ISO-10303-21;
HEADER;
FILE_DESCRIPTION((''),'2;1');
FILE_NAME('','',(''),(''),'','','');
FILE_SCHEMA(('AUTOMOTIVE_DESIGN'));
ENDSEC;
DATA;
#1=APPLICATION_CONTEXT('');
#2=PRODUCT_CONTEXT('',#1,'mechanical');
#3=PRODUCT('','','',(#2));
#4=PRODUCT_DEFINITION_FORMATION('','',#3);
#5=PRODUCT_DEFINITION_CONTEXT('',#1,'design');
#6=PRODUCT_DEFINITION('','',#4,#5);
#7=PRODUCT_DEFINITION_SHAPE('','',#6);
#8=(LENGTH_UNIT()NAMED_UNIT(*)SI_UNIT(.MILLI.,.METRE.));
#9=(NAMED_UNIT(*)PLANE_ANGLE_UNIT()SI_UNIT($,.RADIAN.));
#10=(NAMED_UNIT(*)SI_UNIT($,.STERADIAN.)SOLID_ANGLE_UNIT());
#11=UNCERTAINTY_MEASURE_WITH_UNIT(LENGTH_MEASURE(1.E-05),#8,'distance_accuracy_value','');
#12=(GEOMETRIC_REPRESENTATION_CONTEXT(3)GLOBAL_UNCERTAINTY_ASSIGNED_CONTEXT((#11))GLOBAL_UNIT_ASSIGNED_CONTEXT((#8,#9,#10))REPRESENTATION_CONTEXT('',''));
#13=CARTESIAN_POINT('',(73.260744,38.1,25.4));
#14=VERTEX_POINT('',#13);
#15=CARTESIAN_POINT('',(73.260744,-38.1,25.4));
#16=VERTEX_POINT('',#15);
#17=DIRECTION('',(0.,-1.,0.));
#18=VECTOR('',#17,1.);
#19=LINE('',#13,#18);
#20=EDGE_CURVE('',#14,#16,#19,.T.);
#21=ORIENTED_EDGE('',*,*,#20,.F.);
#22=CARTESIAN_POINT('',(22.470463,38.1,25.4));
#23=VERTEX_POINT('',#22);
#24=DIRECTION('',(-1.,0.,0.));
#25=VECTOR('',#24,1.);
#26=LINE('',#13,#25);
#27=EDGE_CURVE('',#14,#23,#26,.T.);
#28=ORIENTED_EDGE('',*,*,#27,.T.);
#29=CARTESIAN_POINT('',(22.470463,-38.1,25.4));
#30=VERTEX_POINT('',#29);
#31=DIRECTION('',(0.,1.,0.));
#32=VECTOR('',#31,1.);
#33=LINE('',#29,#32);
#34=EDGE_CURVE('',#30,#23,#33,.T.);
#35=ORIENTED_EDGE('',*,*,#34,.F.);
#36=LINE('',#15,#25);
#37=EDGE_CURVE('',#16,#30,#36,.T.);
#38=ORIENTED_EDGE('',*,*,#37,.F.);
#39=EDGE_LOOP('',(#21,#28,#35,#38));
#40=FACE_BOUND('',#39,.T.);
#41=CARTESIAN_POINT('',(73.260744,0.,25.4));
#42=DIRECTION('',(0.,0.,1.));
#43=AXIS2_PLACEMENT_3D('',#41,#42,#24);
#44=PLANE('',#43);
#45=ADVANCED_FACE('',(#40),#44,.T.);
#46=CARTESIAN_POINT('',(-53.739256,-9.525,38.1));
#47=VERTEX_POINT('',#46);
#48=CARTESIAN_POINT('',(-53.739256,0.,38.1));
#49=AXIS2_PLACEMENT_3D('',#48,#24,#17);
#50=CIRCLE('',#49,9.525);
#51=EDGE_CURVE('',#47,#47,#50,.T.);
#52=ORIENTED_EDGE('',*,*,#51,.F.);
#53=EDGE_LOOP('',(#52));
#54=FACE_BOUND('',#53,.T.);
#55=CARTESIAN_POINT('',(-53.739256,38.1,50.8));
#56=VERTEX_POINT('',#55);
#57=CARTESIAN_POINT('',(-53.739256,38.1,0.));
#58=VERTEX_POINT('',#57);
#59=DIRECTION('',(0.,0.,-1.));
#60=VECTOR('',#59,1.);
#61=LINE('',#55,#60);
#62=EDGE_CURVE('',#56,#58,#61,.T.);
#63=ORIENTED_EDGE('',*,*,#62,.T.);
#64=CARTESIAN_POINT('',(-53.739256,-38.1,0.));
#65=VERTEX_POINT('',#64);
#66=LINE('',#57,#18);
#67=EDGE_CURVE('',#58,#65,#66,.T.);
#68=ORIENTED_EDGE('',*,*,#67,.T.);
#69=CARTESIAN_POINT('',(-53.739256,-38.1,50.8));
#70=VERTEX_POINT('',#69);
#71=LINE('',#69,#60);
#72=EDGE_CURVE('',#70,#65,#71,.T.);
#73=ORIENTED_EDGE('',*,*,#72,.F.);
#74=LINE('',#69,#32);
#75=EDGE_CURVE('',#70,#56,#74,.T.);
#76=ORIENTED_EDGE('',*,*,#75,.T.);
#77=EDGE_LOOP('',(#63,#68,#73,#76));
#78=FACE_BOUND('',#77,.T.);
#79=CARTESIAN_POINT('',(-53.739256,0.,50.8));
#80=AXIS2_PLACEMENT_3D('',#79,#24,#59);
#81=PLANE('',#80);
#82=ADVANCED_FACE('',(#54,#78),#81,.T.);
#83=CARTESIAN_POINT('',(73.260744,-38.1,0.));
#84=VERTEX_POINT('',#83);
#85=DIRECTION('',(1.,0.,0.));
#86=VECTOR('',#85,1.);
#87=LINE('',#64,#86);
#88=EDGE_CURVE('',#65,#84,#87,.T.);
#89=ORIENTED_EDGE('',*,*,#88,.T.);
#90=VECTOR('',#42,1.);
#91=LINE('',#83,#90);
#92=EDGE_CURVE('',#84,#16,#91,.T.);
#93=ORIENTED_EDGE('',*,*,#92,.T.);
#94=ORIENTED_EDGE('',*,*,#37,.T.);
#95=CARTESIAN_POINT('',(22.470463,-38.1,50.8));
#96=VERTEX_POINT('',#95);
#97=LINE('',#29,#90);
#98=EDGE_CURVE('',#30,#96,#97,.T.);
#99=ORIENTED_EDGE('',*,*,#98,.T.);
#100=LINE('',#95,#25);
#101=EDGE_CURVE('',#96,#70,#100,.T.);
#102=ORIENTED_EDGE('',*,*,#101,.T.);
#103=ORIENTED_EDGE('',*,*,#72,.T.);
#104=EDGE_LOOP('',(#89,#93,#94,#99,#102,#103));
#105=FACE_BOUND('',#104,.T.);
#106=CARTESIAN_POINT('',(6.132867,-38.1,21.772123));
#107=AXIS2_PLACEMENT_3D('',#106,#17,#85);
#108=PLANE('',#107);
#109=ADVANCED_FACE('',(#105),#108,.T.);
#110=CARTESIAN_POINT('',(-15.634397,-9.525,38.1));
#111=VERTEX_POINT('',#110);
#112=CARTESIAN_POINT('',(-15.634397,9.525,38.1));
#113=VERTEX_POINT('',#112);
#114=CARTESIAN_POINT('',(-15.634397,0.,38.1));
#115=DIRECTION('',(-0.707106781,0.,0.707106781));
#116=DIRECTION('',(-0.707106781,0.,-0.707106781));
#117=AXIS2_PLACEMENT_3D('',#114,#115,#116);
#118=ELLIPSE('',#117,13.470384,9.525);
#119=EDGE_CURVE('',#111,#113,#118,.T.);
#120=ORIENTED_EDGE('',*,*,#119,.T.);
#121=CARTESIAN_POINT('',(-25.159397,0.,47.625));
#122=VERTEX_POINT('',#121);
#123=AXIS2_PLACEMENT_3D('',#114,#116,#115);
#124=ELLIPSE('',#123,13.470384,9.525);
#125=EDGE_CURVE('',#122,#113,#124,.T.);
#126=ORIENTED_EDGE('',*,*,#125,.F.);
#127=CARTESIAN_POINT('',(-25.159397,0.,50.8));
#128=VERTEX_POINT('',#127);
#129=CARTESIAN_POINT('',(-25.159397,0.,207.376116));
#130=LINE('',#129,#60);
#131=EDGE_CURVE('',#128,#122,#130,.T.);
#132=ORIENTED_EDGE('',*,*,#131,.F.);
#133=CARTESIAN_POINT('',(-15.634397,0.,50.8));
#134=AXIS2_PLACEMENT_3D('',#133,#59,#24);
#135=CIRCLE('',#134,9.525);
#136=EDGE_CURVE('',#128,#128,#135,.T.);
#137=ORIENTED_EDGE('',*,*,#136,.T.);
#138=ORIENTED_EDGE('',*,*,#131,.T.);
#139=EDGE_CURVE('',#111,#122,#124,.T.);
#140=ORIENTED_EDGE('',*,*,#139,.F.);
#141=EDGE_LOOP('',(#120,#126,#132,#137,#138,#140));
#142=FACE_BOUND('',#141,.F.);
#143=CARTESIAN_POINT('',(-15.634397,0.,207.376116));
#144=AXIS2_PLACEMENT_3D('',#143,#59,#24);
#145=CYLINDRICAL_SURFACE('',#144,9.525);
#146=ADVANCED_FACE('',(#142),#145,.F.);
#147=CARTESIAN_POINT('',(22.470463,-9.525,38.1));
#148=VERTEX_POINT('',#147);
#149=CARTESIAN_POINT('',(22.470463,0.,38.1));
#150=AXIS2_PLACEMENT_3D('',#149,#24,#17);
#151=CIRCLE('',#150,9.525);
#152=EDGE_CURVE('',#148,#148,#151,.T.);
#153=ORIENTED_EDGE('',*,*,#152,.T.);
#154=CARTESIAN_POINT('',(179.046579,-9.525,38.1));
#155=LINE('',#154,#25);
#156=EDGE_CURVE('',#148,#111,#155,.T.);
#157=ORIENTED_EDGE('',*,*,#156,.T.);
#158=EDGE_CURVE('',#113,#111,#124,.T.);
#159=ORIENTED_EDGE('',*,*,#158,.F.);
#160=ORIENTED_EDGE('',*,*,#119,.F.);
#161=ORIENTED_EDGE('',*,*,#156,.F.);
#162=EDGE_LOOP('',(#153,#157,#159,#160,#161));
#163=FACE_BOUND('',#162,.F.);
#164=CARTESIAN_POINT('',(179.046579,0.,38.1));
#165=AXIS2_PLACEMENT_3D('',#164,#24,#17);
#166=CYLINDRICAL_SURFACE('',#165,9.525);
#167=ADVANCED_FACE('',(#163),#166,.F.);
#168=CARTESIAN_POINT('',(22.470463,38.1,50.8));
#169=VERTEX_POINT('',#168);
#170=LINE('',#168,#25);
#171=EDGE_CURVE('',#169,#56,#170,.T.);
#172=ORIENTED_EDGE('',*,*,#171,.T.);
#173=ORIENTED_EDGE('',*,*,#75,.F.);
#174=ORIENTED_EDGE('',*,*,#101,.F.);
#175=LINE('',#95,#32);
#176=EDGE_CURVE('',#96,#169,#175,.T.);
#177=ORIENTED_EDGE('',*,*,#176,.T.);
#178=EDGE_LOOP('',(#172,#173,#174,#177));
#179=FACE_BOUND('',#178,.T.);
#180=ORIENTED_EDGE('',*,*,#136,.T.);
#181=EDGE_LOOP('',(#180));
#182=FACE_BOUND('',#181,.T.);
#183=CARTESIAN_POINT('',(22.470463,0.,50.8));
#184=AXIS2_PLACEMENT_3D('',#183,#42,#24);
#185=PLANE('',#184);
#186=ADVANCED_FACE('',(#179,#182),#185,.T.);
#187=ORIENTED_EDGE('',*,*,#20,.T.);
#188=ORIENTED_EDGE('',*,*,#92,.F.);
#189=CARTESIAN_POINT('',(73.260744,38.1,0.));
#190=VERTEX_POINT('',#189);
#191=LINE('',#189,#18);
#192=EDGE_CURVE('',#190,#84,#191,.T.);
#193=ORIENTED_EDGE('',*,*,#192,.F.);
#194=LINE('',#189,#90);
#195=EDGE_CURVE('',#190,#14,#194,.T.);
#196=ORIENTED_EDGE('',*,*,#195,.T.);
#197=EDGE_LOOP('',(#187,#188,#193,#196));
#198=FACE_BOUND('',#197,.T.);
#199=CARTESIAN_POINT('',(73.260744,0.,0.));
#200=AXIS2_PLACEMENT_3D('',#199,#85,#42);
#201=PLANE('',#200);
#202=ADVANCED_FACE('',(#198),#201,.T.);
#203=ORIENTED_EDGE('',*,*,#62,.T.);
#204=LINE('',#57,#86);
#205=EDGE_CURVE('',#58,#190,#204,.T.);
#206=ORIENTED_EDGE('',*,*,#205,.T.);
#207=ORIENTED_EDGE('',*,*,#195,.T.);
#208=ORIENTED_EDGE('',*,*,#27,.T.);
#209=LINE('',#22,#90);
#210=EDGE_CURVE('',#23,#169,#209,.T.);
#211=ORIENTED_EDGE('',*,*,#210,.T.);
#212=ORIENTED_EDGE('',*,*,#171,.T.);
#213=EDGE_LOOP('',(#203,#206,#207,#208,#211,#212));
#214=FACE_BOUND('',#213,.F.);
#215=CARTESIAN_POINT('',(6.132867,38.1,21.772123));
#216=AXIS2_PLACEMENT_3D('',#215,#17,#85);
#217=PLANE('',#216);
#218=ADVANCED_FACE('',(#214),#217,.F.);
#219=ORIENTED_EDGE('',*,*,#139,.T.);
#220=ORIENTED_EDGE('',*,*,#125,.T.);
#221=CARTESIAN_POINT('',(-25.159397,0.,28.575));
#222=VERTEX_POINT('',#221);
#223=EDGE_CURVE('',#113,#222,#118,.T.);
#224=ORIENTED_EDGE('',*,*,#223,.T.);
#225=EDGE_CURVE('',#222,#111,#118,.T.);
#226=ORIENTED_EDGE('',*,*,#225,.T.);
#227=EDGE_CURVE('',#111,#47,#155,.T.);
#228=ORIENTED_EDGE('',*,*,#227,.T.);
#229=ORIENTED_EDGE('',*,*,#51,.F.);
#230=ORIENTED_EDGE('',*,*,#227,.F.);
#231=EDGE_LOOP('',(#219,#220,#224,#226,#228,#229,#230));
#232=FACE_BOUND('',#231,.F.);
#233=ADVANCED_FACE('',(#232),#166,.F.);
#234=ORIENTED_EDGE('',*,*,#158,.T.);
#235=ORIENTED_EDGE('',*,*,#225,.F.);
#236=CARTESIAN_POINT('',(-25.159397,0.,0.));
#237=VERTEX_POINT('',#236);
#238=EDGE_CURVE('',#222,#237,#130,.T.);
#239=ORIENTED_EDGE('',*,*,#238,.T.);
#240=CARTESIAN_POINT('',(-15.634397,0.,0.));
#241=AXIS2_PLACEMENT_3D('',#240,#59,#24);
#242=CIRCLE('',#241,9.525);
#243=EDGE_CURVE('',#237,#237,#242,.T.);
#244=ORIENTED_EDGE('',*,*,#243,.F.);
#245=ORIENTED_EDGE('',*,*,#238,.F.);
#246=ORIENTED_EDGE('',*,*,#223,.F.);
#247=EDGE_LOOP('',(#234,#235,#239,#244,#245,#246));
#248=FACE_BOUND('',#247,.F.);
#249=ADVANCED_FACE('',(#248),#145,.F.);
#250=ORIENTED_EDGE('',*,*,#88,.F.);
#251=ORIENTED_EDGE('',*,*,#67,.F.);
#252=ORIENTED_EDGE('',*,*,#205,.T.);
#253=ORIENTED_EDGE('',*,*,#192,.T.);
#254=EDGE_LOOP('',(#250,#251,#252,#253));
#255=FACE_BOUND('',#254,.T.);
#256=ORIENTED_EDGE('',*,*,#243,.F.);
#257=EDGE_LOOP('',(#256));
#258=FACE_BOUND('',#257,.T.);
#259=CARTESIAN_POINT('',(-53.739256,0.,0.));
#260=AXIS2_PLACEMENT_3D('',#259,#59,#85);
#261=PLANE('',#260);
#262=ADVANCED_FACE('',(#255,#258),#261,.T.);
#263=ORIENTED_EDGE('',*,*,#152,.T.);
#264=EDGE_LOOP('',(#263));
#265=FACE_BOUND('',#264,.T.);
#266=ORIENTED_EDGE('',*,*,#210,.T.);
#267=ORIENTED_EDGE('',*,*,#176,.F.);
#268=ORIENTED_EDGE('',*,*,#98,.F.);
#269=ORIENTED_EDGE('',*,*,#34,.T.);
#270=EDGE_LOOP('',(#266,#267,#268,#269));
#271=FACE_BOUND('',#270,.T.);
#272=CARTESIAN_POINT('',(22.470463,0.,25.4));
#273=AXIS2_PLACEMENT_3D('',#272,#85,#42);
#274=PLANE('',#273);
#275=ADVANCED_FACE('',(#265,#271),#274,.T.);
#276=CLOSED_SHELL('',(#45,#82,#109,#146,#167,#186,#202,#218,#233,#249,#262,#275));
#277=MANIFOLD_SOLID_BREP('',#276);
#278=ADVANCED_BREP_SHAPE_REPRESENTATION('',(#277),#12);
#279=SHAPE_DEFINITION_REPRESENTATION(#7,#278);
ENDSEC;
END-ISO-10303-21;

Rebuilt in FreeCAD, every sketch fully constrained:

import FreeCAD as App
import Part
import Sketcher
Q = App.Units.Quantity


def add_polygon(sketch, points):
    """Adds a closed chain of lines whose ends are joined by coincident constraints."""
    first, n = sketch.GeometryCount, len(points)
    for a, b in zip(points, points[1:] + points[:1]):
        sketch.addGeometry(Part.LineSegment(App.Vector(*a, 0), App.Vector(*b, 0)), False)
    for i in range(n):
        sketch.addConstraint(Sketcher.Constraint("Coincident", first + i, 2, first + (i + 1) % n, 1))

doc = App.newDocument("Part")
params = doc.addObject("Spreadsheet::Sheet", "Params")
for row, (alias, value) in enumerate([
    ("sketch1_width", "5 in"),
    ("sketch1_height", "2 in"),
    ("pad1_length", "3 in"),
    ("sketch2_diameter", "0.75 in"),
    ("hole_diameter", "0.75 in"),
    ("sketch3_diameter", "0.75 in"),
    ("hole2_diameter", "0.75 in"),
], start=1):
    params.set(f"A{row}", alias)
    params.set(f"B{row}", "=" + value)
    params.setAlias(f"B{row}", alias)

body = doc.addObject("PartDesign::Body", "Body")

sketch1 = doc.addObject("Sketcher::SketchObject", "Sketch")
body.addObject(sketch1)
sketch1.AttachmentSupport = (doc.XZ_Plane, [""])
sketch1.MapMode = "FlatFace"
add_polygon(sketch1, [(-54, 51), (-54, 0), (73, 0), (73, 25), (22, 25), (22, 51)])
sketch1.addConstraint([
    Sketcher.Constraint("Vertical", 0),
    Sketcher.Constraint("Horizontal", 1),
    Sketcher.Constraint("Vertical", 2),
    Sketcher.Constraint("Horizontal", 3),
    Sketcher.Constraint("Vertical", 4),
    Sketcher.Constraint("Horizontal", 5),
    Sketcher.Constraint("PointOnObject", 0, 2, -1),
    Sketcher.Constraint("Equal", 2, 4),
    Sketcher.Constraint("DistanceX", 1, 1, 1, 2, Q("5 in")),
    Sketcher.Constraint("DistanceY", 0, 2, 0, 1, Q("2 in")),
    Sketcher.Constraint("DistanceX", 3, 2, 3, 1, 50.790281),
    Sketcher.Constraint("DistanceX", 0, 2, -1, 1, 53.739256),
])
sketch1.setExpression("Constraints[14]", "Params.sketch1_width")
sketch1.setExpression("Constraints[15]", "Params.sketch1_height")
pad1 = doc.addObject("PartDesign::Pad", "Pad")
body.addObject(pad1)
pad1.Profile = sketch1
pad1.setExpression("Length", "Params.pad1_length")
pad1.Midplane = True

sketch2 = doc.addObject("Sketcher::SketchObject", "Sketch001")
body.addObject(sketch2)
sketch2.AttachmentSupport = (doc.YZ_Plane, [""])
sketch2.MapMode = "FlatFace"
sketch2.AttachmentOffset = App.Placement(App.Vector(0, 0, 22.470463), App.Rotation())
sketch2.addGeometry(Part.Circle(App.Vector(0, 38, 0), App.Vector(0, 0, 1), 10), False)
sketch2.addConstraint([
    Sketcher.Constraint("PointOnObject", 0, 3, -2),
    Sketcher.Constraint("Diameter", 0, Q("0.75 in")),
    Sketcher.Constraint("DistanceY", -1, 1, 0, 3, Q("1.5 in")),
])
sketch2.setExpression("Constraints[1]", "Params.sketch2_diameter")
doc.recompute()
hole = doc.addObject("PartDesign::Hole", "Hole")
body.addObject(hole)
hole.Profile = sketch2
hole.ThreadType = "None"
hole.setExpression("Diameter", "Params.hole_diameter")
hole.DepthType = "ThroughAll"

sketch3 = doc.addObject("Sketcher::SketchObject", "Sketch002")
body.addObject(sketch3)
sketch3.AttachmentSupport = (doc.XY_Plane, [""])
sketch3.MapMode = "FlatFace"
sketch3.AttachmentOffset = App.Placement(App.Vector(0, 0, 2 * 25.4), App.Rotation())
sketch3.addGeometry(Part.Circle(App.Vector(-16, 0, 0), App.Vector(0, 0, 1), 10), False)
sketch3.addConstraint([
    Sketcher.Constraint("PointOnObject", 0, 3, -1),
    Sketcher.Constraint("Diameter", 0, Q("0.75 in")),
    Sketcher.Constraint("DistanceX", 0, 3, -1, 1, 15.634397),
])
sketch3.setExpression("Constraints[1]", "Params.sketch3_diameter")
doc.recompute()
hole2 = doc.addObject("PartDesign::Hole", "Hole001")
body.addObject(hole2)
hole2.Profile = sketch3
hole2.ThreadType = "None"
hole2.setExpression("Diameter", "Params.hole2_diameter")
hole2.DepthType = "ThroughAll"

doc.recompute()
